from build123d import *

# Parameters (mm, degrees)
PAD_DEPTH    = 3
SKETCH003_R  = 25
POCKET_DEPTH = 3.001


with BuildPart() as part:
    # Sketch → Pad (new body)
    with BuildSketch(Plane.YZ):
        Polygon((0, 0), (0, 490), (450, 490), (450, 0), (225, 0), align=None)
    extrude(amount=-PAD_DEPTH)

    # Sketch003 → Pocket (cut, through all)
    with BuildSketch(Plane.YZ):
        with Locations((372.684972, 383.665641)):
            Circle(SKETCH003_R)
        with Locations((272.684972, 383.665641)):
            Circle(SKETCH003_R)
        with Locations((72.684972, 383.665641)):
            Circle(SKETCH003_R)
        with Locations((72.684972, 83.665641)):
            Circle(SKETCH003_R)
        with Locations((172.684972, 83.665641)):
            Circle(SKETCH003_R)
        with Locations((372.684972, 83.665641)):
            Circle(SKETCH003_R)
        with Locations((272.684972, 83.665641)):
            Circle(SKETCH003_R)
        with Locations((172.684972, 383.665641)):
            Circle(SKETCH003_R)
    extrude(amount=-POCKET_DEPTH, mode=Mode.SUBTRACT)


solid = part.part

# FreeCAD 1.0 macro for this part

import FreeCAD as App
import Part
import Sketcher
from FreeCAD import Vector


def add_polygon(sketch, points):
    """Adds a closed chain of lines whose ends are joined by coincident constraints."""
    first, n = sketch.GeometryCount, len(points)
    for a, b in zip(points, points[1:] + points[:1]):
        sketch.addGeometry(Part.LineSegment(App.Vector(*a, 0), App.Vector(*b, 0)), False)
    for i in range(n):
        sketch.addConstraint(Sketcher.Constraint("Coincident", first + i, 2, first + (i + 1) % n, 1))

doc = App.newDocument("Part")
body = doc.addObject("PartDesign::Body", "Body")

sketch1 = body.newObject("Sketcher::SketchObject", "Sketch")
sketch1.AttachmentSupport = (doc.getObject("YZ_Plane"), [""])
sketch1.MapMode = "FlatFace"
add_polygon(sketch1, [(0, 490), (0, 0), (450, 0), (450, 490)])
sketch1.addConstraint([
    Sketcher.Constraint("Vertical", 0),
    Sketcher.Constraint("Horizontal", 1),
    Sketcher.Constraint("Vertical", 2),
    Sketcher.Constraint("Horizontal", 3),
    Sketcher.Constraint("Coincident", 0, 2, -1, 1),
    Sketcher.Constraint("DistanceX", 1, 1, 1, 2, 450.0),
    Sketcher.Constraint("DistanceY", 0, 2, 0, 1, 490.0),
])
pad1 = body.newObject("PartDesign::Pad", "Pad")
pad1.Profile = sketch1
pad1.Length = 3
pad1.Reversed = True

sketch2 = body.newObject("Sketcher::SketchObject", "Sketch001")
sketch2.AttachmentSupport = (doc.getObject("YZ_Plane"), [""])
sketch2.MapMode = "FlatFace"
sketch2.addGeometry([
    Part.Circle(Vector(373, 384, 0), Vector(0, 0, 1), 25),
    Part.Circle(Vector(273, 384, 0), Vector(0, 0, 1), 25),
    Part.Circle(Vector(73, 384, 0), Vector(0, 0, 1), 25),
    Part.Circle(Vector(73, 84, 0), Vector(0, 0, 1), 25),
    Part.Circle(Vector(173, 84, 0), Vector(0, 0, 1), 25),
    Part.Circle(Vector(373, 84, 0), Vector(0, 0, 1), 25),
    Part.Circle(Vector(273, 84, 0), Vector(0, 0, 1), 25),
    Part.Circle(Vector(173, 384, 0), Vector(0, 0, 1), 25),
], False)
sketch2.addConstraint([
    Sketcher.Constraint("Equal", 0, 1),
    Sketcher.Constraint("Equal", 1, 2),
    Sketcher.Constraint("Equal", 2, 3),
    Sketcher.Constraint("Equal", 3, 4),
    Sketcher.Constraint("Equal", 4, 5),
    Sketcher.Constraint("Equal", 5, 6),
    Sketcher.Constraint("Equal", 6, 7),
    Sketcher.Constraint("Horizontal", 0, 3, 1, 3),
    Sketcher.Constraint("Horizontal", 1, 3, 2, 3),
    Sketcher.Constraint("Horizontal", 3, 3, 4, 3),
    Sketcher.Constraint("Horizontal", 4, 3, 5, 3),
    Sketcher.Constraint("Horizontal", 5, 3, 6, 3),
    Sketcher.Constraint("Horizontal", 2, 3, 7, 3),
    Sketcher.Constraint("Vertical", 2, 3, 3, 3),
    Sketcher.Constraint("Vertical", 0, 3, 5, 3),
    Sketcher.Constraint("Vertical", 1, 3, 6, 3),
    Sketcher.Constraint("Vertical", 4, 3, 7, 3),
    Sketcher.Constraint("Diameter", 0, 50.0),
    Sketcher.Constraint("DistanceX", 1, 3, 0, 3, 100.0),
    Sketcher.Constraint("DistanceX", 2, 3, 1, 3, 200.0),
    Sketcher.Constraint("DistanceY", 3, 3, 2, 3, 300.0),
    Sketcher.Constraint("DistanceX", 3, 3, 4, 3, 100.0),
    Sketcher.Constraint("DistanceX", -1, 1, 0, 3, 372.684972),
    Sketcher.Constraint("DistanceY", -1, 1, 0, 3, 383.665641),
])
pocket1 = body.newObject("PartDesign::Pocket", "Pocket")
pocket1.Profile = sketch2
pocket1.Type = "ThroughAll"

doc.recompute()
